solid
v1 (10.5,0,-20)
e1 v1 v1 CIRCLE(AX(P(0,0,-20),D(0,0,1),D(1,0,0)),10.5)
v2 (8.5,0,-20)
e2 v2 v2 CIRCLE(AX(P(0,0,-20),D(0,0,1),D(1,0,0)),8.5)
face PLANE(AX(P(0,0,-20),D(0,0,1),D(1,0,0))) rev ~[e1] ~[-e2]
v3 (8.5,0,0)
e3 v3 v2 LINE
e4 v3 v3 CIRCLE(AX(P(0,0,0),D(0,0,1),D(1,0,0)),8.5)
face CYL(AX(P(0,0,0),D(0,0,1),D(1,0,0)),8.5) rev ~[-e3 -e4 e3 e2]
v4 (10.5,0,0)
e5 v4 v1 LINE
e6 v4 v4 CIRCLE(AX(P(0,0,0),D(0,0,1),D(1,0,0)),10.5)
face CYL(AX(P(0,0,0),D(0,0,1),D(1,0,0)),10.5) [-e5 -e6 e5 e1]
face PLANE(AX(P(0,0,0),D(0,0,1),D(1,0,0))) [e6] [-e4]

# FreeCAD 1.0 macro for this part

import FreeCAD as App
import Part
import Sketcher
from FreeCAD import Vector

doc = App.newDocument("Part")
params = doc.addObject("Spreadsheet::Sheet", "Params")
for row, (alias, value) in enumerate([
    ("sketch1_diameter", "21 mm"),
    ("sketch1_diameter2", "17 mm"),
    ("pad1_length", "20 mm"),
], start=1):
    params.set(f"A{row}", alias)
    params.set(f"B{row}", "=" + value)
    params.setAlias(f"B{row}", alias)

body = doc.addObject("PartDesign::Body", "Body")

# Sketch on XY plane
sketch1 = body.newObject("Sketcher::SketchObject", "Sketch")
sketch1.AttachmentSupport = (doc.getObject("XY_Plane"), [""])
sketch1.MapMode = "FlatFace"
sketch1.addGeometry([
    Part.Circle(Vector(0, 0, 0), Vector(0, 0, 1), 10),
    Part.Circle(Vector(0, 0, 0), Vector(0, 0, 1), 8),
], False)
sketch1.addConstraint([
    Sketcher.Constraint("Coincident", 0, 3, -1, 1),
    Sketcher.Constraint("Coincident", 1, 3, -1, 1),
    Sketcher.Constraint("Diameter", 0, 21.0),
    Sketcher.Constraint("Diameter", 1, 17.0),
])
sketch1.setExpression("Constraints[2]", "Params.sketch1_diameter")
sketch1.setExpression("Constraints[3]", "Params.sketch1_diameter2")
pad1 = body.newObject("PartDesign::Pad", "Pad")
pad1.Profile = sketch1
pad1.setExpression("Length", "Params.pad1_length")
pad1.Reversed = True

doc.recompute()
